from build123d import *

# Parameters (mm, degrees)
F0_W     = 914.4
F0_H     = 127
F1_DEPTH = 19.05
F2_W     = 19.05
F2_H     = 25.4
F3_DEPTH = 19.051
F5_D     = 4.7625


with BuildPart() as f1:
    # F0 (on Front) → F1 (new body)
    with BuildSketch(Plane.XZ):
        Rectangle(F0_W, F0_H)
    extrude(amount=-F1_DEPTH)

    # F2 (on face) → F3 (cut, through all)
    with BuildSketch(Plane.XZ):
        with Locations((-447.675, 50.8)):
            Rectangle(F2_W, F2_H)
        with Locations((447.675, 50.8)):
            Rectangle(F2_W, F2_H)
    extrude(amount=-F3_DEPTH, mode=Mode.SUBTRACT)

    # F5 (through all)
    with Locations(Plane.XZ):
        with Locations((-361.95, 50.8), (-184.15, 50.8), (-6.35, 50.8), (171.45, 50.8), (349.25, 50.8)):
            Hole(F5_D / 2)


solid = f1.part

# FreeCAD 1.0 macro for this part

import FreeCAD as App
import Part
import Sketcher

V = App.Vector
Q = App.Units.Quantity


def add_polygon(sketch, points):
    """Adds a closed chain of lines whose ends are joined by coincident constraints."""
    first, n = sketch.GeometryCount, len(points)
    for a, b in zip(points, points[1:] + points[:1]):
        sketch.addGeometry(Part.LineSegment(App.Vector(*a, 0), App.Vector(*b, 0)), False)
    for i in range(n):
        sketch.addConstraint(Sketcher.Constraint("Coincident", first + i, 2, first + (i + 1) % n, 1))

doc = App.newDocument("Part")
body = doc.addObject("PartDesign::Body", "Body")

# Sketch on XZ plane
sketch1 = body.newObject("Sketcher::SketchObject", "Sketch")
sketch1.AttachmentSupport = (doc.getObject("XZ_Plane"), [""])
sketch1.MapMode = "FlatFace"
add_polygon(sketch1, [(-457.2, 63.5), (-457.2, -63.5), (457.2, -63.5), (457.2, 63.5)])  # lines 0-3
sketch1.addConstraint([
    Sketcher.Constraint("Vertical", 0),
    Sketcher.Constraint("Horizontal", 1),
    Sketcher.Constraint("Vertical", 2),
    Sketcher.Constraint("Horizontal", 3),
    Sketcher.Constraint("Symmetric", 0, 2, 2, 2, -1, 1),
    Sketcher.Constraint("DistanceX", 1, 1, 1, 2, Q("36 in")),
    Sketcher.Constraint("DistanceY", 0, 2, 0, 1, Q("5 in")),
])
pad1 = body.newObject("PartDesign::Pad", "Pad")
pad1.Profile = sketch1
pad1.Length = Q("0.75 in")
pad1.Reversed = True

# Sketch on XZ plane
sketch2 = body.newObject("Sketcher::SketchObject", "Sketch001")
sketch2.AttachmentSupport = (doc.getObject("XZ_Plane"), [""])
sketch2.MapMode = "FlatFace"
add_polygon(sketch2, [(-457.2, 63.5), (-457.2, 38.1), (-438.15, 38.1), (-438.15, 63.5)])  # lines 0-3
add_polygon(sketch2, [(438.15, 63.5), (438.15, 38.1), (457.2, 38.1), (457.2, 63.5)])  # lines 4-7
sketch2.addConstraint([
    Sketcher.Constraint("Vertical", 0),
    Sketcher.Constraint("Horizontal", 1),
    Sketcher.Constraint("Vertical", 2),
    Sketcher.Constraint("Horizontal", 3),
    Sketcher.Constraint("Vertical", 4),
    Sketcher.Constraint("Horizontal", 5),
    Sketcher.Constraint("Vertical", 6),
    Sketcher.Constraint("Horizontal", 7),
    Sketcher.Constraint("Symmetric", 1, 2, 4, 2, -2),
    Sketcher.Constraint("Symmetric", 3, 2, 6, 2, -2),
    Sketcher.Constraint("DistanceY", 0, 2, 0, 1, Q("1 in")),
    Sketcher.Constraint("DistanceX", 0, 2, -1, 1, Q("18 in")),
    Sketcher.Constraint("DistanceX", 1, 1, 1, 2, Q("0.75 in")),
    Sketcher.Constraint("DistanceY", -1, 1, 0, 2, Q("1.5 in")),
])
pocket1 = body.newObject("PartDesign::Pocket", "Pocket")
pocket1.Profile = sketch2
pocket1.Type = "ThroughAll"

# Sketch on XZ plane
sketch3 = body.newObject("Sketcher::SketchObject", "Sketch002")
sketch3.AttachmentSupport = (doc.getObject("XZ_Plane"), [""])
sketch3.MapMode = "FlatFace"
sketch3.addGeometry([
    Part.Circle(V(-361.95, 50.8, 0), V(0, 0, 1), 2.38125),  # 0
    Part.Circle(V(-184.15, 50.8, 0), V(0, 0, 1), 2.38125),  # 1
    Part.Circle(V(-6.35, 50.8, 0), V(0, 0, 1), 2.38125),  # 2
    Part.Circle(V(171.45, 50.8, 0), V(0, 0, 1), 2.38125),  # 3
    Part.Circle(V(349.25, 50.8, 0), V(0, 0, 1), 2.38125),  # 4
], False)
sketch3.addConstraint([
    Sketcher.Constraint("Equal", 0, 1),
    Sketcher.Constraint("Equal", 1, 2),
    Sketcher.Constraint("Equal", 2, 3),
    Sketcher.Constraint("Equal", 3, 4),
    Sketcher.Constraint("Horizontal", 0, 3, 1, 3),
    Sketcher.Constraint("Horizontal", 1, 3, 2, 3),
    Sketcher.Constraint("Horizontal", 2, 3, 3, 3),
    Sketcher.Constraint("Horizontal", 3, 3, 4, 3),
    Sketcher.Constraint("Diameter", 0, Q("0.1875 in")),
    Sketcher.Constraint("DistanceY", -1, 1, 0, 3, Q("2 in")),
    Sketcher.Constraint("DistanceX", 0, 3, 1, 3, Q("7 in")),
    Sketcher.Constraint("DistanceX", 1, 3, 2, 3, Q("7 in")),
    Sketcher.Constraint("DistanceX", 2, 3, 3, 3, Q("7 in")),
    Sketcher.Constraint("DistanceX", 3, 3, 4, 3, Q("7 in")),
    Sketcher.Constraint("DistanceX", 0, 3, -1, 1, Q("14.25 in")),
])
doc.recompute()
hole = body.newObject("PartDesign::Hole", "Hole")
hole.Profile = sketch3
hole.ThreadType = "None"
hole.Diameter = Q("0.1875 in")
hole.DepthType = "ThroughAll"

doc.recompute()
